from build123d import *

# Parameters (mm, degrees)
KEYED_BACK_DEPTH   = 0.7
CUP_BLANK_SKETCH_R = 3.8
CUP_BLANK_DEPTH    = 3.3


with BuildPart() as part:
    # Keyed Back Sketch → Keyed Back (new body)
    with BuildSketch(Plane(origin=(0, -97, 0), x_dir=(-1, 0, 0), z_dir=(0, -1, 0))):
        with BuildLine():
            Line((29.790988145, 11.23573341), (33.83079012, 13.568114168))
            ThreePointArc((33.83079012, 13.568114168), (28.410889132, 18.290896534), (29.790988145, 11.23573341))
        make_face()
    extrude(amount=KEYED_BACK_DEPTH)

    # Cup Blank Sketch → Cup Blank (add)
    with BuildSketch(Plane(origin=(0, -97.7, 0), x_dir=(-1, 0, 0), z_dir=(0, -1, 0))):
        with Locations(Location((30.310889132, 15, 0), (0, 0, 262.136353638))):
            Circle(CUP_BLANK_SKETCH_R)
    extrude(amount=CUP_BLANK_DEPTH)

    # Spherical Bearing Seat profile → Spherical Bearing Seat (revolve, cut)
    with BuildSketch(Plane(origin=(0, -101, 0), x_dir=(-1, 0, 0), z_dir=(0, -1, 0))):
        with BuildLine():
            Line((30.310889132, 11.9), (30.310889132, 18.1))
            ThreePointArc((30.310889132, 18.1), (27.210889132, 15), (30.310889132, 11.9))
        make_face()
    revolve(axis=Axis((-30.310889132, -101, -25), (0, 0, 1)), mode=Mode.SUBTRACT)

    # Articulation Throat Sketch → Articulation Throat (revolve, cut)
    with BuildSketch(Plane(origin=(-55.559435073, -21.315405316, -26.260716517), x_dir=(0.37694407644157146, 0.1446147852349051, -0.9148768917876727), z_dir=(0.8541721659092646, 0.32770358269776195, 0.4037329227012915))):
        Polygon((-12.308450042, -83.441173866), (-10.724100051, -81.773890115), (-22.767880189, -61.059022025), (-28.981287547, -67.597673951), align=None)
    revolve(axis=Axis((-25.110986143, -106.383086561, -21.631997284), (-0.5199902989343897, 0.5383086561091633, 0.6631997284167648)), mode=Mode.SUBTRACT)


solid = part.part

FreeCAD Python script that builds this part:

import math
import FreeCAD as App
import Part
import Sketcher

V = App.Vector
Q = App.Units.Quantity

doc = App.newDocument("Part")
body = doc.addObject("PartDesign::Body", "Body")

# Sketch on XZ plane
sketch1 = body.newObject("Sketcher::SketchObject", "Sketch")
sketch1.AttachmentSupport = (doc.getObject("XZ_Plane"), [""])
sketch1.MapMode = "FlatFace"
sketch1.AttachmentOffset = App.Placement(V(0, 0, 97), App.Rotation())
sketch1.addGeometry([
    Part.LineSegment(V(-29.8, -11.2, 0), V(-33.8, -13.6, 0)),
    Part.ArcOfCircle(Part.Circle(V(-30.3, -15, 0), V(0, 0, 1), 3.8), math.radians(158), math.radians(442)),
], False)
sketch1.addConstraint([
    Sketcher.Constraint("Coincident", 0, 1, 1, 2),
    Sketcher.Constraint("Coincident", 1, 1, 0, 2),
    Sketcher.Constraint("Radius", 1, 3.8),
    Sketcher.Constraint("Angle", 0, Q("-150 deg")),
    Sketcher.Constraint("DistanceY", 1, 3, -1, 1, 15.0),
    Sketcher.Constraint("DistanceX", 1, 3, 0, 1, 0.519901),
    Sketcher.Constraint("DistanceX", 1, 3, -1, 1, 30.310889),
])
pad1 = body.newObject("PartDesign::Pad", "Pad")
pad1.Profile = sketch1
pad1.Length = 0.7

# Sketch on XZ plane
sketch2 = body.newObject("Sketcher::SketchObject", "Sketch001")
sketch2.AttachmentSupport = (doc.getObject("XZ_Plane"), [""])
sketch2.MapMode = "FlatFace"
sketch2.AttachmentOffset = App.Placement(V(0, 0, 97.7), App.Rotation())
sketch2.addGeometry(Part.Circle(V(-30.3, -15, 0), V(0, 0, 1), 3.8), False)
sketch2.addConstraint([
    Sketcher.Constraint("Diameter", 0, 7.6),
    Sketcher.Constraint("DistanceY", 0, 3, -1, 1, 15.0),
    Sketcher.Constraint("DistanceX", 0, 3, -1, 1, 30.310889),
])
pad2 = body.newObject("PartDesign::Pad", "Pad001")
pad2.Profile = sketch2
pad2.Length = 3.3

# Sketch on XZ plane
sketch3 = body.newObject("Sketcher::SketchObject", "Sketch002")
sketch3.AttachmentSupport = (doc.getObject("XZ_Plane"), [""])
sketch3.MapMode = "FlatFace"
sketch3.AttachmentOffset = App.Placement(V(0, 0, 101), App.Rotation())
sketch3.addGeometry([
    Part.LineSegment(V(-30.3, -11.9, 0), V(-30.3, -18.1, 0)),
    Part.ArcOfCircle(Part.Circle(V(-30.3, -15, 0), V(0, 0, 1), 3.1), math.radians(-90), math.radians(90)),
], False)
sketch3.addGeometry(Part.LineSegment(V(-30.3, -18.1, 0), V(-30.3, -11.9, 0)), True)  # axis
sketch3.addConstraint([
    Sketcher.Constraint("Coincident", 0, 1, 1, 2),
    Sketcher.Constraint("Coincident", 1, 1, 0, 2),
    Sketcher.Constraint("Vertical", 0),
    Sketcher.Constraint("Vertical", 2),
    Sketcher.Constraint("Coincident", 2, 1, 1, 1),
    Sketcher.Constraint("Vertical", 1, 3, 0, 1),
    Sketcher.Constraint("Equal", 0, 2),
    Sketcher.Constraint("Radius", 1, 3.1),
    Sketcher.Constraint("DistanceY", 1, 3, -1, 1, 15.0),
    Sketcher.Constraint("DistanceX", 1, 3, -1, 1, 30.310889),
])
groove = body.newObject("PartDesign::Groove", "Groove")
groove.Profile = sketch3
groove.ReferenceAxis = (sketch3, ["Axis0"])
groove.Angle = 360

# Sketch on an angled plane
sketch4 = body.newObject("Sketcher::SketchObject", "Sketch003")
sketch4.Placement = App.Placement(V(-55.559435, -21.315405, -26.260717), App.Rotation(V(0.376944076, 0.144614785, -0.914876892), V(-0.358194185, 0.93364711, 0), V(0.854172166, 0.327703583, 0.403732923), "ZXY"))
sketch4.addGeometry([
    Part.LineSegment(V(-12.3, -83.4, 0), V(-10.7, -81.8, 0)),
    Part.LineSegment(V(-10.7, -81.8, 0), V(-22.8, -61.1, 0)),
    Part.LineSegment(V(-22.8, -61.1, 0), V(-29, -67.6, 0)),
    Part.LineSegment(V(-29, -67.6, 0), V(-12.3, -83.4, 0)),
], False)
sketch4.addGeometry(Part.LineSegment(V(-12.3, -83.4, 0), V(-29, -67.6, 0)), True)  # axis
sketch4.addConstraint([
    Sketcher.Constraint("Coincident", 0, 2, 1, 1),
    Sketcher.Constraint("Coincident", 1, 2, 2, 1),
    Sketcher.Constraint("Coincident", 2, 2, 3, 1),
    Sketcher.Constraint("Coincident", 3, 2, 0, 1),
    Sketcher.Constraint("Coincident", 4, 1, 3, 2),
    Sketcher.Constraint("Coincident", 4, 2, 2, 2),
    Sketcher.Constraint("Parallel", 0, 2),
    Sketcher.Constraint("Perpendicular", 2, 3),
    Sketcher.Constraint("Distance", 3, 23.0),
    Sketcher.Constraint("Distance", 0, 2.3),
    Sketcher.Constraint("Distance", 2, 9.02),
    Sketcher.Constraint("DistanceX", 0, 2, -1, 1, 10.7241),
    Sketcher.Constraint("DistanceY", 3, 2, 2, 2, 15.8435),
    Sketcher.Constraint("DistanceY", 0, 2, -1, 1, 81.77389),
])
groove2 = body.newObject("PartDesign::Groove", "Groove001")
groove2.Profile = sketch4
groove2.ReferenceAxis = (sketch4, ["Axis0"])
groove2.Angle = 360

doc.recompute()
